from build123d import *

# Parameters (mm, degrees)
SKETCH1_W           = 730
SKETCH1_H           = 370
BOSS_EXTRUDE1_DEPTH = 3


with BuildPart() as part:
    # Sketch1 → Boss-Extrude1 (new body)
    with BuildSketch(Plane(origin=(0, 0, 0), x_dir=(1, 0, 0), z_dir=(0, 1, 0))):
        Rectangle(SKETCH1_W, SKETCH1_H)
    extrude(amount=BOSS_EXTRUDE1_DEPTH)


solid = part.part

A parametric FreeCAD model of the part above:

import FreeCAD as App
import Part
import Sketcher
Q = App.Units.Quantity


def add_polygon(sketch, points):
    """Adds a closed chain of lines whose ends are joined by coincident constraints."""
    first, n = sketch.GeometryCount, len(points)
    for a, b in zip(points, points[1:] + points[:1]):
        sketch.addGeometry(Part.LineSegment(App.Vector(*a, 0), App.Vector(*b, 0)), False)
    for i in range(n):
        sketch.addConstraint(Sketcher.Constraint("Coincident", first + i, 2, first + (i + 1) % n, 1))

doc = App.newDocument("Part")
body = doc.addObject("PartDesign::Body", "Body")

# Sketch on XZ plane
sketch1 = doc.addObject("Sketcher::SketchObject", "Sketch")
body.addObject(sketch1)
sketch1.AttachmentSupport = (doc.XZ_Plane, [""])
sketch1.MapMode = "FlatFace"
add_polygon(sketch1, [(-365, -185), (-365, 185), (365, 185), (365, -185)])  # lines 0-3
sketch1.addConstraint([
    Sketcher.Constraint("Vertical", 0),
    Sketcher.Constraint("Horizontal", 1),
    Sketcher.Constraint("Vertical", 2),
    Sketcher.Constraint("Horizontal", 3),
    Sketcher.Constraint("Symmetric", 0, 2, 2, 2, -1, 1),
    Sketcher.Constraint("DistanceX", 1, 1, 1, 2, Q("730 mm")),
    Sketcher.Constraint("DistanceY", 0, 1, 0, 2, Q("370 mm")),
])
pad1 = doc.addObject("PartDesign::Pad", "Pad")
body.addObject(pad1)
pad1.Profile = sketch1
pad1.Length = 3
pad1.Reversed = True

doc.recompute()
